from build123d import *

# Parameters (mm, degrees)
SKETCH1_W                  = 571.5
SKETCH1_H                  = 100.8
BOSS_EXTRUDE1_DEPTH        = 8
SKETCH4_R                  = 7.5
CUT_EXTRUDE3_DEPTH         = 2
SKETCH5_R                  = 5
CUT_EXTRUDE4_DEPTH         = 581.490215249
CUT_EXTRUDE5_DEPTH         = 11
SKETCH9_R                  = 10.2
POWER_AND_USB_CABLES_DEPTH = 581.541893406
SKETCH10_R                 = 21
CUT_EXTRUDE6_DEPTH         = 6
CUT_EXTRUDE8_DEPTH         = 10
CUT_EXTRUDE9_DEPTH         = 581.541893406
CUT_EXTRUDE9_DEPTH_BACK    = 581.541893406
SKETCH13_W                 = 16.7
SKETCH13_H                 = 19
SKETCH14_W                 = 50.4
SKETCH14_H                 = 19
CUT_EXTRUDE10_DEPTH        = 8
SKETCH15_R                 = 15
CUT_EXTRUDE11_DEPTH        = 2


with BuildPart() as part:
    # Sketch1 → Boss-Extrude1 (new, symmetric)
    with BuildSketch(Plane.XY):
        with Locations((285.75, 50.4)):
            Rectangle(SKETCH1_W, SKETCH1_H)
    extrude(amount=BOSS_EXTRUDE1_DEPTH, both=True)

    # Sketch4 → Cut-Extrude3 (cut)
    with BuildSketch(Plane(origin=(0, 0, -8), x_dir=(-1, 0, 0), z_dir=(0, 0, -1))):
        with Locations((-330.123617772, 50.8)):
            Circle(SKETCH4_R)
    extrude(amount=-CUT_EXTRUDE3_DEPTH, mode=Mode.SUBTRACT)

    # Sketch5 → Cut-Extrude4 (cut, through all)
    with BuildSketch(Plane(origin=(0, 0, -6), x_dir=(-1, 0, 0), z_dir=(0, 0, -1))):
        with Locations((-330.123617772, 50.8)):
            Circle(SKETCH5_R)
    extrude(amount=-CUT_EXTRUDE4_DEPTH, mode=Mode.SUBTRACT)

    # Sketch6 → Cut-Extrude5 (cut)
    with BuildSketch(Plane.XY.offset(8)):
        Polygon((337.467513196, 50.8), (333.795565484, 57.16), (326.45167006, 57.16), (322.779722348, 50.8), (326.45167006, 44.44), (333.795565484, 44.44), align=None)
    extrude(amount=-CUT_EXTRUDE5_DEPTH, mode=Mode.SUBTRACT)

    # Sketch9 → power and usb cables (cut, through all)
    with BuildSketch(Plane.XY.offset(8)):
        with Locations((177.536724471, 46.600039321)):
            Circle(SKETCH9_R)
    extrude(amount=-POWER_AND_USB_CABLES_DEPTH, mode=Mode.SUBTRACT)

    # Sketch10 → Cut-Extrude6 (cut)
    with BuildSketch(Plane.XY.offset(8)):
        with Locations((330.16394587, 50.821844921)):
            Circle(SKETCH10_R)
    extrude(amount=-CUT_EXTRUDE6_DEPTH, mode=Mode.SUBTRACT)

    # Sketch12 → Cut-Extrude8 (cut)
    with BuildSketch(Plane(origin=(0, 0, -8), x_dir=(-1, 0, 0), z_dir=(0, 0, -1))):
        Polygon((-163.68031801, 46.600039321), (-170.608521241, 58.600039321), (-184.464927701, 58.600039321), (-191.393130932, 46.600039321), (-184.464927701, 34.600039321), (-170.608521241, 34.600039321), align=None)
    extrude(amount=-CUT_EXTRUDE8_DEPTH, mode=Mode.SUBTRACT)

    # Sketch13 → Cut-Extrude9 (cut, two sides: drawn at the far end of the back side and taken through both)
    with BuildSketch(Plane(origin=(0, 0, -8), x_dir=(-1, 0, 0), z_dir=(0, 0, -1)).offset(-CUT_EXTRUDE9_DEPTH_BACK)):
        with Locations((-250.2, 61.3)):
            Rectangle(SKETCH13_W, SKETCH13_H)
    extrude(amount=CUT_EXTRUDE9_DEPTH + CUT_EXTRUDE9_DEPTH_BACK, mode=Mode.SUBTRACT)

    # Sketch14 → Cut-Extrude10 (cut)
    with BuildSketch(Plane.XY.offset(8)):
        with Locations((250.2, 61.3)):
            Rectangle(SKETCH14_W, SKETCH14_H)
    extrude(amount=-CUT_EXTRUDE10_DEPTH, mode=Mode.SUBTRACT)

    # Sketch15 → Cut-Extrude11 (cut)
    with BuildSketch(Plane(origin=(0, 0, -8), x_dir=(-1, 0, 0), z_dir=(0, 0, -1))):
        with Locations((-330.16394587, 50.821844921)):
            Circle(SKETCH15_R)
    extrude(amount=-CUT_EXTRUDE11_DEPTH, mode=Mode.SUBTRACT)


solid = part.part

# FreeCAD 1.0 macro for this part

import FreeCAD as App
import Part
import Sketcher
Q = App.Units.Quantity


def add_polygon(sketch, points):
    """Adds a closed chain of lines whose ends are joined by coincident constraints."""
    first, n = sketch.GeometryCount, len(points)
    for a, b in zip(points, points[1:] + points[:1]):
        sketch.addGeometry(Part.LineSegment(App.Vector(*a, 0), App.Vector(*b, 0)), False)
    for i in range(n):
        sketch.addConstraint(Sketcher.Constraint("Coincident", first + i, 2, first + (i + 1) % n, 1))

doc = App.newDocument("Part")
body = doc.addObject("PartDesign::Body", "Body")

sketch1 = body.newObject("Sketcher::SketchObject", "Sketch")
sketch1.AttachmentSupport = (doc.getObject("XY_Plane"), [""])
sketch1.MapMode = "FlatFace"
add_polygon(sketch1, [(0, 101), (0, 0), (572, 0), (572, 101)])
sketch1.addConstraint([
    Sketcher.Constraint("Vertical", 0),
    Sketcher.Constraint("Horizontal", 1),
    Sketcher.Constraint("Vertical", 2),
    Sketcher.Constraint("Horizontal", 3),
    Sketcher.Constraint("Coincident", 0, 2, -1, 1),
    Sketcher.Constraint("DistanceX", 1, 1, 1, 2, Q("571.5 mm")),
    Sketcher.Constraint("DistanceY", 0, 2, 0, 1, Q("100.8 mm")),
])
pad1 = body.newObject("PartDesign::Pad", "Pad")
pad1.Profile = sketch1
pad1.Length = 16
pad1.Midplane = True

sketch2 = body.newObject("Sketcher::SketchObject", "Sketch001")
sketch2.AttachmentSupport = (doc.getObject("XY_Plane"), [""])
sketch2.MapMode = "FlatFace"
sketch2.AttachmentOffset = App.Placement(App.Vector(0, 0, -8), App.Rotation())
sketch2.addGeometry(Part.Circle(App.Vector(330, 51, 0), App.Vector(0, 0, 1), 8), False)
sketch2.addConstraint([
    Sketcher.Constraint("Diameter", 0, Q("15 mm")),
    Sketcher.Constraint("DistanceY", -1, 1, 0, 3, Q("50.8 mm")),
    Sketcher.Constraint("DistanceX", -1, 1, 0, 3, Q("330.123618 mm")),
])
pocket1 = body.newObject("PartDesign::Pocket", "Pocket")
pocket1.Profile = sketch2
pocket1.Length = 2
pocket1.Reversed = True

sketch3 = body.newObject("Sketcher::SketchObject", "Sketch002")
sketch3.AttachmentSupport = (doc.getObject("XY_Plane"), [""])
sketch3.MapMode = "FlatFace"
sketch3.AttachmentOffset = App.Placement(App.Vector(0, 0, -6), App.Rotation())
sketch3.addGeometry(Part.Circle(App.Vector(330, 51, 0), App.Vector(0, 0, 1), 5), False)
sketch3.addConstraint([
    Sketcher.Constraint("Diameter", 0, Q("10 mm")),
    Sketcher.Constraint("DistanceY", -1, 1, 0, 3, Q("50.8 mm")),
    Sketcher.Constraint("DistanceX", -1, 1, 0, 3, Q("330.123618 mm")),
])
pocket2 = body.newObject("PartDesign::Pocket", "Pocket001")
pocket2.Profile = sketch3
pocket2.Type = "ThroughAll"
pocket2.Reversed = True

sketch4 = body.newObject("Sketcher::SketchObject", "Sketch003")
sketch4.AttachmentSupport = (doc.getObject("XY_Plane"), [""])
sketch4.MapMode = "FlatFace"
sketch4.AttachmentOffset = App.Placement(App.Vector(0, 0, 8), App.Rotation())
add_polygon(sketch4, [(337, 51), (334, 57), (326, 57), (323, 51), (326, 44), (334, 44)])
sketch4.addConstraint([
    Sketcher.Constraint("Horizontal", 1),
    Sketcher.Constraint("Horizontal", 4),
    Sketcher.Constraint("Parallel", 0, 3),
    Sketcher.Constraint("Parallel", 2, 5),
    Sketcher.Constraint("Horizontal", 2, 2, 5, 2),
    Sketcher.Constraint("Vertical", 1, 2, 3, 2),
    Sketcher.Constraint("Vertical", 0, 2, 4, 2),
    Sketcher.Constraint("Angle", 0, Q("120 deg")),
    Sketcher.Constraint("DistanceY", -1, 1, 2, 2, Q("50.8 mm")),
    Sketcher.Constraint("DistanceY", -1, 1, 0, 2, Q("57.16 mm")),
    Sketcher.Constraint("DistanceX", 1, 2, 1, 1, Q("7.343895 mm")),
    Sketcher.Constraint("DistanceX", -1, 1, 1, 2, Q("326.45167 mm")),
])
pocket3 = body.newObject("PartDesign::Pocket", "Pocket002")
pocket3.Profile = sketch4
pocket3.Length = 11

sketch5 = body.newObject("Sketcher::SketchObject", "Sketch004")
sketch5.AttachmentSupport = (doc.getObject("XY_Plane"), [""])
sketch5.MapMode = "FlatFace"
sketch5.AttachmentOffset = App.Placement(App.Vector(0, 0, 8), App.Rotation())
sketch5.addGeometry(Part.Circle(App.Vector(178, 47, 0), App.Vector(0, 0, 1), 10), False)
sketch5.addConstraint([
    Sketcher.Constraint("Diameter", 0, Q("20.4 mm")),
    Sketcher.Constraint("DistanceY", -1, 1, 0, 3, Q("46.600039 mm")),
    Sketcher.Constraint("DistanceX", -1, 1, 0, 3, Q("177.536724 mm")),
])
pocket4 = body.newObject("PartDesign::Pocket", "Pocket003")
pocket4.Profile = sketch5
pocket4.Type = "ThroughAll"

sketch6 = body.newObject("Sketcher::SketchObject", "Sketch005")
sketch6.AttachmentSupport = (doc.getObject("XY_Plane"), [""])
sketch6.MapMode = "FlatFace"
sketch6.AttachmentOffset = App.Placement(App.Vector(0, 0, 8), App.Rotation())
sketch6.addGeometry(Part.Circle(App.Vector(330, 51, 0), App.Vector(0, 0, 1), 21), False)
sketch6.addConstraint([
    Sketcher.Constraint("Diameter", 0, Q("42 mm")),
    Sketcher.Constraint("DistanceX", -1, 1, 0, 3, Q("330.163946 mm")),
    Sketcher.Constraint("DistanceY", -1, 1, 0, 3, Q("50.821845 mm")),
])
pocket5 = body.newObject("PartDesign::Pocket", "Pocket004")
pocket5.Profile = sketch6
pocket5.Length = 6

sketch7 = body.newObject("Sketcher::SketchObject", "Sketch006")
sketch7.AttachmentSupport = (doc.getObject("XY_Plane"), [""])
sketch7.MapMode = "FlatFace"
sketch7.AttachmentOffset = App.Placement(App.Vector(0, 0, -8), App.Rotation())
add_polygon(sketch7, [(164, 47), (171, 59), (184, 59), (191, 47), (184, 35), (171, 35)])
sketch7.addConstraint([
    Sketcher.Constraint("Horizontal", 1),
    Sketcher.Constraint("Horizontal", 4),
    Sketcher.Constraint("Parallel", 0, 3),
    Sketcher.Constraint("Parallel", 2, 5),
    Sketcher.Constraint("Horizontal", 2, 2, 5, 2),
    Sketcher.Constraint("Vertical", 1, 2, 3, 2),
    Sketcher.Constraint("Vertical", 0, 2, 4, 2),
    Sketcher.Constraint("Angle", 0, Q("60 deg")),
    Sketcher.Constraint("DistanceY", 2, 2, 1, 2, Q("12 mm")),
    Sketcher.Constraint("DistanceX", 1, 1, 1, 2, Q("13.856406 mm")),
    Sketcher.Constraint("DistanceX", -1, 1, 0, 2, Q("170.608521 mm")),
    Sketcher.Constraint("DistanceY", -1, 1, 0, 2, Q("58.600039 mm")),
])
pocket6 = body.newObject("PartDesign::Pocket", "Pocket005")
pocket6.Profile = sketch7
pocket6.Length = 10
pocket6.Reversed = True

sketch8 = body.newObject("Sketcher::SketchObject", "Sketch007")
sketch8.AttachmentSupport = (doc.getObject("XY_Plane"), [""])
sketch8.MapMode = "FlatFace"
sketch8.AttachmentOffset = App.Placement(App.Vector(0, 0, -8), App.Rotation())
add_polygon(sketch8, [(259, 71), (259, 52), (242, 52), (242, 71)])
sketch8.addConstraint([
    Sketcher.Constraint("Vertical", 0),
    Sketcher.Constraint("Horizontal", 1),
    Sketcher.Constraint("Vertical", 2),
    Sketcher.Constraint("Horizontal", 3),
    Sketcher.Constraint("DistanceY", 0, 2, 0, 1, Q("19 mm")),
    Sketcher.Constraint("DistanceX", 1, 2, 1, 1, Q("16.7 mm")),
    Sketcher.Constraint("DistanceY", -1, 1, 0, 2, Q("51.8 mm")),
    Sketcher.Constraint("DistanceX", -1, 1, 0, 2, Q("258.55 mm")),
])
pocket7 = body.newObject("PartDesign::Pocket", "Pocket006")
pocket7.Profile = sketch8
pocket7.Type = "ThroughAll"
pocket7.Midplane = True

sketch9 = body.newObject("Sketcher::SketchObject", "Sketch008")
sketch9.AttachmentSupport = (doc.getObject("XY_Plane"), [""])
sketch9.MapMode = "FlatFace"
sketch9.AttachmentOffset = App.Placement(App.Vector(0, 0, 8), App.Rotation())
add_polygon(sketch9, [(225, 71), (225, 52), (275, 52), (275, 71)])
sketch9.addConstraint([
    Sketcher.Constraint("Vertical", 0),
    Sketcher.Constraint("Horizontal", 1),
    Sketcher.Constraint("Vertical", 2),
    Sketcher.Constraint("Horizontal", 3),
    Sketcher.Constraint("DistanceY", 0, 2, 0, 1, Q("19 mm")),
    Sketcher.Constraint("DistanceX", 1, 1, 1, 2, Q("50.4 mm")),
    Sketcher.Constraint("DistanceX", -1, 1, 0, 2, Q("225 mm")),
    Sketcher.Constraint("DistanceY", -1, 1, 0, 2, Q("51.8 mm")),
])
pocket8 = body.newObject("PartDesign::Pocket", "Pocket007")
pocket8.Profile = sketch9
pocket8.Length = 8

sketch10 = body.newObject("Sketcher::SketchObject", "Sketch009")
sketch10.AttachmentSupport = (doc.getObject("XY_Plane"), [""])
sketch10.MapMode = "FlatFace"
sketch10.AttachmentOffset = App.Placement(App.Vector(0, 0, -8), App.Rotation())
sketch10.addGeometry(Part.Circle(App.Vector(330, 51, 0), App.Vector(0, 0, 1), 15), False)
sketch10.addConstraint([
    Sketcher.Constraint("Diameter", 0, Q("30 mm")),
    Sketcher.Constraint("DistanceX", -1, 1, 0, 3, Q("330.163946 mm")),
    Sketcher.Constraint("DistanceY", -1, 1, 0, 3, Q("50.821845 mm")),
])
pocket9 = body.newObject("PartDesign::Pocket", "Pocket008")
pocket9.Profile = sketch10
pocket9.Length = 2
pocket9.Reversed = True

doc.recompute()
